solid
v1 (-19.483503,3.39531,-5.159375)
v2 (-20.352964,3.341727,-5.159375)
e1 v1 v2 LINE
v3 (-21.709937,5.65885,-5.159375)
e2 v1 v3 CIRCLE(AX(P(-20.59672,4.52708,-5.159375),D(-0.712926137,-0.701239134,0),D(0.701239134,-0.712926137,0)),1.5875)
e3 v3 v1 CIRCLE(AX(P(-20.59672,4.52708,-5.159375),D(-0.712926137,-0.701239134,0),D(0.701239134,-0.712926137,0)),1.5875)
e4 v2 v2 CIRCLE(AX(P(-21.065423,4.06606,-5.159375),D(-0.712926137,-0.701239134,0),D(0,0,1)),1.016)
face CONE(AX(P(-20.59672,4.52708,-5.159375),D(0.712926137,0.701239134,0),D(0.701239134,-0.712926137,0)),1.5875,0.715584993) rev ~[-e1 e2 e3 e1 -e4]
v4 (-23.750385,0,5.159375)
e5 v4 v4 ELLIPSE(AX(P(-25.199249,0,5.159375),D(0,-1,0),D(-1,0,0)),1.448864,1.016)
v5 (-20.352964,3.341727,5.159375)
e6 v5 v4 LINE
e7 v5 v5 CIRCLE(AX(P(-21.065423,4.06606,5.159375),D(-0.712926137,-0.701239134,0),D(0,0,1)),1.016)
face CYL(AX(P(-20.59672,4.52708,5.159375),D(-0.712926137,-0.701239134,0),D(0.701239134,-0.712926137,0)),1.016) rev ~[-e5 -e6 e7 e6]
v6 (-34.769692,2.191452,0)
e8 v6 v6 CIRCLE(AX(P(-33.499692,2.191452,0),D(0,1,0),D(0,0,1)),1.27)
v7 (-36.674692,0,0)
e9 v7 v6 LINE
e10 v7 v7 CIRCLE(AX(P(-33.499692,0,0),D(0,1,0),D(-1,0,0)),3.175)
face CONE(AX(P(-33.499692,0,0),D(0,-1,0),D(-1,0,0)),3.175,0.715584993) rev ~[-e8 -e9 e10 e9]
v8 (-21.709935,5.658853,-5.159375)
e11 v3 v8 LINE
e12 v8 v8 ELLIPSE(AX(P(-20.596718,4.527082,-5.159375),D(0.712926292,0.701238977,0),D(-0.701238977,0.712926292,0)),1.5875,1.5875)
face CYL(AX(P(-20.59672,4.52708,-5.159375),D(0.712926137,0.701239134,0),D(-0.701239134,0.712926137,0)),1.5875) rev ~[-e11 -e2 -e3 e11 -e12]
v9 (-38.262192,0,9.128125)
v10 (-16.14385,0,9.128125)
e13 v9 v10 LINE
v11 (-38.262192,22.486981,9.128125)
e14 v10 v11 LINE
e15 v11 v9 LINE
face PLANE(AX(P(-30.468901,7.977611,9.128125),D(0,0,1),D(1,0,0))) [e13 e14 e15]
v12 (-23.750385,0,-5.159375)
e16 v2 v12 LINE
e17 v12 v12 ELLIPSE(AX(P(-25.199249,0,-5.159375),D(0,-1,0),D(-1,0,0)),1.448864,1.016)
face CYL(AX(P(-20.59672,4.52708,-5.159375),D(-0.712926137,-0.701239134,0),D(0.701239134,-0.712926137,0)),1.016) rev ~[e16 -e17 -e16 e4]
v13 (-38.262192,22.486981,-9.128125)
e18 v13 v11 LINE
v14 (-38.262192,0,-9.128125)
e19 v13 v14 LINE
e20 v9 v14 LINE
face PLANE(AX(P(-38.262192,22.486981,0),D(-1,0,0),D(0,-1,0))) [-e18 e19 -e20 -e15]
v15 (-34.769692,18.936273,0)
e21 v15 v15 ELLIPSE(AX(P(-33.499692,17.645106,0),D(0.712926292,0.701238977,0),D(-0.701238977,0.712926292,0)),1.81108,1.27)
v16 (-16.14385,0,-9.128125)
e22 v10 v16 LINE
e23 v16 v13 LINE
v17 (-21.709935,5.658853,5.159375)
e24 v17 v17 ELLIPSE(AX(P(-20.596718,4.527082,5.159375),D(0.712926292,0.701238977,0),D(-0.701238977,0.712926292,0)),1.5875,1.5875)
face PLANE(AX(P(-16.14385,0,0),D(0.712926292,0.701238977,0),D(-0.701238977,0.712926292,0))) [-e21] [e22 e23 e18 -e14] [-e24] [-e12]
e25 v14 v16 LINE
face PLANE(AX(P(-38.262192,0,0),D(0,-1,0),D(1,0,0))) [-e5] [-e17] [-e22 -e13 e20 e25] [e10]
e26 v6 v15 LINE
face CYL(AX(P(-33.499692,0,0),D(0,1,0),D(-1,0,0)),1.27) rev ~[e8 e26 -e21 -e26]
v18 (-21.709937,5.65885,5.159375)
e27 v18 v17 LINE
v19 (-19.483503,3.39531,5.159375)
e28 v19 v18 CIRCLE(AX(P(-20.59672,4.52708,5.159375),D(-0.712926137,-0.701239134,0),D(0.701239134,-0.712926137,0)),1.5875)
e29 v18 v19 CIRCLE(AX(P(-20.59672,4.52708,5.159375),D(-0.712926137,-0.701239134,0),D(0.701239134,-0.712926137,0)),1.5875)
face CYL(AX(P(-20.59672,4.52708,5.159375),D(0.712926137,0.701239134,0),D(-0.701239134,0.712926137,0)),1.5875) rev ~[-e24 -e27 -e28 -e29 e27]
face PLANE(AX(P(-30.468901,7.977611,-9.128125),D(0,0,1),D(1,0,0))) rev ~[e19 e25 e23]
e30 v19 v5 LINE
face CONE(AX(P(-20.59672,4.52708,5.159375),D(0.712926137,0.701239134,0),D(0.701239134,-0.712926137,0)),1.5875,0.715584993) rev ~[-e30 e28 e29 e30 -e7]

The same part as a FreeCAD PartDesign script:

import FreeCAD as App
import Part
import Sketcher
from FreeCAD import Vector
Q = App.Units.Quantity


def add_polygon(sketch, points):
    """Adds a closed chain of lines whose ends are joined by coincident constraints."""
    first, n = sketch.GeometryCount, len(points)
    for a, b in zip(points, points[1:] + points[:1]):
        sketch.addGeometry(Part.LineSegment(App.Vector(*a, 0), App.Vector(*b, 0)), False)
    for i in range(n):
        sketch.addConstraint(Sketcher.Constraint("Coincident", first + i, 2, first + (i + 1) % n, 1))

doc = App.newDocument("Part")
body = doc.addObject("PartDesign::Body", "Body")

sketch1 = body.newObject("Sketcher::SketchObject", "Sketch")
sketch1.AttachmentSupport = (doc.getObject("XY_Plane"), [""])
sketch1.MapMode = "FlatFace"
add_polygon(sketch1, [(-16, 0), (-38, 22), (-38, 0)])
sketch1.addConstraint([
    Sketcher.Constraint("Vertical", 1),
    Sketcher.Constraint("Horizontal", 2),
    Sketcher.Constraint("PointOnObject", 1, 2, -1),
    Sketcher.Constraint("DistanceX", 2, 1, 2, 2, Q("22.118342 mm")),
    Sketcher.Constraint("DistanceY", 1, 2, 1, 1, Q("22.486981 mm")),
    Sketcher.Constraint("DistanceX", 2, 2, -1, 1, Q("16.14385 mm")),
])
pad1 = body.newObject("PartDesign::Pad", "Pad")
pad1.Profile = sketch1
pad1.Length = Q("0.71875 in")
pad1.Midplane = True

sketch2 = body.newObject("Sketcher::SketchObject", "Sketch001")
sketch2.Placement = App.Placement(Vector(-8.205334, -8.070824, 0), App.Rotation(Vector(-0.701239134, 0.712926137, 0), Vector(0, 0, 1), Vector(0.712926137, 0.701239134, 0), "ZXY"))
sketch2.addGeometry([
    Part.Circle(Vector(17.7, -5.2, 0), Vector(0, 0, 1), 1),
    Part.Circle(Vector(17.7, 5.2, 0), Vector(0, 0, 1), 1),
], False)
sketch2.addConstraint([
    Sketcher.Constraint("Equal", 0, 1),
    Sketcher.Constraint("Symmetric", 0, 3, 1, 3, -1),
    Sketcher.Constraint("Diameter", 0, Q("0.08 in")),
    Sketcher.Constraint("DistanceY", 0, 3, -1, 1, Q("0.203125 in")),
    Sketcher.Constraint("DistanceX", -1, 1, 0, 3, Q("17.6707 mm")),
])
doc.recompute()
hole = body.newObject("PartDesign::Hole", "Hole")
hole.Profile = sketch2
hole.ThreadType = "None"
hole.Diameter = Q("0.08 in")
hole.DepthType = "ThroughAll"
hole.HoleCutType = "Countersink"
hole.HoleCutDiameter = Q("0.125 in")
hole.HoleCutCountersinkAngle = 82

sketch3 = body.newObject("Sketcher::SketchObject", "Sketch002")
sketch3.AttachmentSupport = (doc.getObject("XZ_Plane"), [""])
sketch3.MapMode = "FlatFace"
sketch3.addGeometry(Part.Circle(Vector(-33.5, 0, 0), Vector(0, 0, 1), 1.3), False)
sketch3.addConstraint([
    Sketcher.Constraint("PointOnObject", 0, 3, -1),
    Sketcher.Constraint("Diameter", 0, Q("0.1 in")),
    Sketcher.Constraint("DistanceX", 0, 3, -1, 1, Q("33.499692 mm")),
])
doc.recompute()
hole2 = body.newObject("PartDesign::Hole", "Hole001")
hole2.Profile = sketch3
hole2.ThreadType = "None"
hole2.Diameter = Q("0.1 in")
hole2.DepthType = "ThroughAll"
hole2.HoleCutType = "Countersink"
hole2.HoleCutDiameter = Q("0.25 in")
hole2.HoleCutCountersinkAngle = 82

doc.recompute()
